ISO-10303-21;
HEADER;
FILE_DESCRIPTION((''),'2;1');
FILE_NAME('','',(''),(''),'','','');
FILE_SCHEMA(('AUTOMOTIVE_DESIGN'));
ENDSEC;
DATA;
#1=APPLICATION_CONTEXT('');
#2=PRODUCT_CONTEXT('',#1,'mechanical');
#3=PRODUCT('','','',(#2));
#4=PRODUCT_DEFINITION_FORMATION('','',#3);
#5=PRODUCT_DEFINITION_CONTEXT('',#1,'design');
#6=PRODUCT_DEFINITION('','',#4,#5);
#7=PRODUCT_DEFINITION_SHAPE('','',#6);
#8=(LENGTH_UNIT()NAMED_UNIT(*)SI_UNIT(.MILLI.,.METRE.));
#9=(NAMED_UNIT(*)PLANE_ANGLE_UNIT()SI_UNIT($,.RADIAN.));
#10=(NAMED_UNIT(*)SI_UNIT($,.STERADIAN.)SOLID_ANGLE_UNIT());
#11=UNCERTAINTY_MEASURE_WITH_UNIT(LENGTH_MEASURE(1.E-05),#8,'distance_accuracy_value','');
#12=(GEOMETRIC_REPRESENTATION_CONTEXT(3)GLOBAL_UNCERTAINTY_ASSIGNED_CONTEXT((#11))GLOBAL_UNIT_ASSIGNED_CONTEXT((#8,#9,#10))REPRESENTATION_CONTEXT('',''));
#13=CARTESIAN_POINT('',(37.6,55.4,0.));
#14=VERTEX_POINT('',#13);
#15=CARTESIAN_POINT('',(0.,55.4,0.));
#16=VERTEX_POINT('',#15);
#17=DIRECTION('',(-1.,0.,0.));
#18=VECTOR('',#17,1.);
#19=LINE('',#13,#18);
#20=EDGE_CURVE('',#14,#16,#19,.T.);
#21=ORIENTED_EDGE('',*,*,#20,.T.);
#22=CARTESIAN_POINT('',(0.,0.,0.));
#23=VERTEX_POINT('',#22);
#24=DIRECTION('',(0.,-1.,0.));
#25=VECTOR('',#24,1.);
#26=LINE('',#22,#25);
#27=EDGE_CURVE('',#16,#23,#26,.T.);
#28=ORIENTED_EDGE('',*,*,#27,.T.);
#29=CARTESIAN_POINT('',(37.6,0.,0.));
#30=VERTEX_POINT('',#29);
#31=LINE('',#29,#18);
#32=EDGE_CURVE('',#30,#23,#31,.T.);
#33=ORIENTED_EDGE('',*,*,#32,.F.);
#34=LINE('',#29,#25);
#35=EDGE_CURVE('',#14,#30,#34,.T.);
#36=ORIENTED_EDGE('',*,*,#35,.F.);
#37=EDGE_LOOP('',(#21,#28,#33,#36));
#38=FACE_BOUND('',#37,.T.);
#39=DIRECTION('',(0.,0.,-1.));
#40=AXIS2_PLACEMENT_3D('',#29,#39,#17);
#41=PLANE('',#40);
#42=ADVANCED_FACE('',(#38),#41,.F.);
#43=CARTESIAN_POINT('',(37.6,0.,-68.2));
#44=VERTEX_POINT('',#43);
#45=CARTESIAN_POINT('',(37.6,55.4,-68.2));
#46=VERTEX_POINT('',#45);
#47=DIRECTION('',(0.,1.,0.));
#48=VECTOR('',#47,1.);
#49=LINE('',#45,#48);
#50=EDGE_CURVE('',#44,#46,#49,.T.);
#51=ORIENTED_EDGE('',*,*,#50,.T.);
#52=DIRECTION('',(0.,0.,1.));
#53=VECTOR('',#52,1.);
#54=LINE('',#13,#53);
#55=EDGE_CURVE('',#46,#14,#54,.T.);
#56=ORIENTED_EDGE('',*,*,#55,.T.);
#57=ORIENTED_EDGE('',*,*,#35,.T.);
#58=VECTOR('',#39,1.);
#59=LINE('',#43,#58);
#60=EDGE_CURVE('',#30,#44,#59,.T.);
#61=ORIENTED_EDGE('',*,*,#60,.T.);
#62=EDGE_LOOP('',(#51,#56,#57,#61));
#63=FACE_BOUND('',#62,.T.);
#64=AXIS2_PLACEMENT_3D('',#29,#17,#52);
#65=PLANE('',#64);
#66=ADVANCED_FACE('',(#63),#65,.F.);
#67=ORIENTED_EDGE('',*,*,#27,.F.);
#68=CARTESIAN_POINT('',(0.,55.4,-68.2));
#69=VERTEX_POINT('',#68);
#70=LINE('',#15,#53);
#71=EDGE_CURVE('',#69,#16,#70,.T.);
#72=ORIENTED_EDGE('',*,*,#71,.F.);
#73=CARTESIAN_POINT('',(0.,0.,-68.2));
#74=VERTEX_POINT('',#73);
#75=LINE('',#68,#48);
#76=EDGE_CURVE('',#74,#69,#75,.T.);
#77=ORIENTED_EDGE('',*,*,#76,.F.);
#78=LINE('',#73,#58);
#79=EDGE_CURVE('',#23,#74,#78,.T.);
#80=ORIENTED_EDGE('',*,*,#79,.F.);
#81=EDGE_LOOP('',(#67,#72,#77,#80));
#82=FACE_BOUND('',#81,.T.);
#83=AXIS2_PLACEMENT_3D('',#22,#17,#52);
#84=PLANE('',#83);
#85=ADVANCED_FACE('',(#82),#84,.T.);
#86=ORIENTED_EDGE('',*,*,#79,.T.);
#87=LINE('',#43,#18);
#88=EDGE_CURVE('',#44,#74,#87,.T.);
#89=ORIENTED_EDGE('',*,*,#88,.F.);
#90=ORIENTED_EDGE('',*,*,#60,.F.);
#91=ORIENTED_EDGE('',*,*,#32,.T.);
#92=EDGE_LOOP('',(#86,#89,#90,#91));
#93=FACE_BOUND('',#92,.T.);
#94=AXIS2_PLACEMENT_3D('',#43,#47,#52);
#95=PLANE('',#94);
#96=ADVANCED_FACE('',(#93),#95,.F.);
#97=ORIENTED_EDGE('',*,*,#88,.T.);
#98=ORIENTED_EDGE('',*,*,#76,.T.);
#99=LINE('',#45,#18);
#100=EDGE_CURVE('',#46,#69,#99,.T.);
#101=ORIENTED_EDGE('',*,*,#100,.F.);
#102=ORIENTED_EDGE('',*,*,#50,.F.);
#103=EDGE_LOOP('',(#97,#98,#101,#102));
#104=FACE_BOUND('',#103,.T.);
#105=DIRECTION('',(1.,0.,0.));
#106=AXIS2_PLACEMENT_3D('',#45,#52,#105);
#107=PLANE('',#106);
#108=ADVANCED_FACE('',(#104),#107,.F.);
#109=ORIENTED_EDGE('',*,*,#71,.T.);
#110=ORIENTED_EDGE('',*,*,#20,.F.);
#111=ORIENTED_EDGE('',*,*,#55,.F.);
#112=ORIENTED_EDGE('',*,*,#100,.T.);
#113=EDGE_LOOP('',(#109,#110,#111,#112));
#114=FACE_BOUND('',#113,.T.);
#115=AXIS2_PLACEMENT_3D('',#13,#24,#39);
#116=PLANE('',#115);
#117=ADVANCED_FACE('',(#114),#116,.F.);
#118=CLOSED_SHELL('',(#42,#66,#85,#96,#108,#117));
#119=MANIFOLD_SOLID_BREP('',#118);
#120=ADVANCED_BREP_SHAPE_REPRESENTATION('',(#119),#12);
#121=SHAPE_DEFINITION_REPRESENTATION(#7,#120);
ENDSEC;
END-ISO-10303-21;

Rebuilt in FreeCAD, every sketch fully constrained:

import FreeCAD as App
import Part
import Sketcher
Q = App.Units.Quantity

doc = App.newDocument("Part")
body = doc.addObject("PartDesign::Body", "Body")

# Sketch on YZ plane
sketch1 = body.newObject("Sketcher::SketchObject", "Sketch")
sketch1.AttachmentSupport = (doc.getObject("YZ_Plane"), [""])
sketch1.MapMode = "FlatFace"
sketch1.addGeometry([
    Part.LineSegment(App.Vector(55, 0, 0), App.Vector(0, 0, 0)),
    Part.LineSegment(App.Vector(0, 0, 0), App.Vector(0, -68, 0)),
    Part.LineSegment(App.Vector(0, -68, 0), App.Vector(55, -68, 0)),
    Part.LineSegment(App.Vector(55, -68, 0), App.Vector(55, 0, 0)),
], False)
sketch1.addConstraint([
    Sketcher.Constraint("Coincident", 0, 2, 1, 1),
    Sketcher.Constraint("Coincident", 1, 2, 2, 1),
    Sketcher.Constraint("Coincident", 2, 2, 3, 1),
    Sketcher.Constraint("Coincident", 3, 2, 0, 1),
    Sketcher.Constraint("Horizontal", 0),
    Sketcher.Constraint("Vertical", 1),
    Sketcher.Constraint("Horizontal", 2),
    Sketcher.Constraint("Vertical", 3),
    Sketcher.Constraint("Coincident", 0, 2, -1, 1),
    Sketcher.Constraint("DistanceX", 0, 2, 0, 1, Q("55.4 mm")),
    Sketcher.Constraint("DistanceY", 1, 2, 1, 1, Q("68.2 mm")),
])
pad1 = body.newObject("PartDesign::Pad", "Pad")
pad1.Profile = sketch1
pad1.Length = 37.6

doc.recompute()
